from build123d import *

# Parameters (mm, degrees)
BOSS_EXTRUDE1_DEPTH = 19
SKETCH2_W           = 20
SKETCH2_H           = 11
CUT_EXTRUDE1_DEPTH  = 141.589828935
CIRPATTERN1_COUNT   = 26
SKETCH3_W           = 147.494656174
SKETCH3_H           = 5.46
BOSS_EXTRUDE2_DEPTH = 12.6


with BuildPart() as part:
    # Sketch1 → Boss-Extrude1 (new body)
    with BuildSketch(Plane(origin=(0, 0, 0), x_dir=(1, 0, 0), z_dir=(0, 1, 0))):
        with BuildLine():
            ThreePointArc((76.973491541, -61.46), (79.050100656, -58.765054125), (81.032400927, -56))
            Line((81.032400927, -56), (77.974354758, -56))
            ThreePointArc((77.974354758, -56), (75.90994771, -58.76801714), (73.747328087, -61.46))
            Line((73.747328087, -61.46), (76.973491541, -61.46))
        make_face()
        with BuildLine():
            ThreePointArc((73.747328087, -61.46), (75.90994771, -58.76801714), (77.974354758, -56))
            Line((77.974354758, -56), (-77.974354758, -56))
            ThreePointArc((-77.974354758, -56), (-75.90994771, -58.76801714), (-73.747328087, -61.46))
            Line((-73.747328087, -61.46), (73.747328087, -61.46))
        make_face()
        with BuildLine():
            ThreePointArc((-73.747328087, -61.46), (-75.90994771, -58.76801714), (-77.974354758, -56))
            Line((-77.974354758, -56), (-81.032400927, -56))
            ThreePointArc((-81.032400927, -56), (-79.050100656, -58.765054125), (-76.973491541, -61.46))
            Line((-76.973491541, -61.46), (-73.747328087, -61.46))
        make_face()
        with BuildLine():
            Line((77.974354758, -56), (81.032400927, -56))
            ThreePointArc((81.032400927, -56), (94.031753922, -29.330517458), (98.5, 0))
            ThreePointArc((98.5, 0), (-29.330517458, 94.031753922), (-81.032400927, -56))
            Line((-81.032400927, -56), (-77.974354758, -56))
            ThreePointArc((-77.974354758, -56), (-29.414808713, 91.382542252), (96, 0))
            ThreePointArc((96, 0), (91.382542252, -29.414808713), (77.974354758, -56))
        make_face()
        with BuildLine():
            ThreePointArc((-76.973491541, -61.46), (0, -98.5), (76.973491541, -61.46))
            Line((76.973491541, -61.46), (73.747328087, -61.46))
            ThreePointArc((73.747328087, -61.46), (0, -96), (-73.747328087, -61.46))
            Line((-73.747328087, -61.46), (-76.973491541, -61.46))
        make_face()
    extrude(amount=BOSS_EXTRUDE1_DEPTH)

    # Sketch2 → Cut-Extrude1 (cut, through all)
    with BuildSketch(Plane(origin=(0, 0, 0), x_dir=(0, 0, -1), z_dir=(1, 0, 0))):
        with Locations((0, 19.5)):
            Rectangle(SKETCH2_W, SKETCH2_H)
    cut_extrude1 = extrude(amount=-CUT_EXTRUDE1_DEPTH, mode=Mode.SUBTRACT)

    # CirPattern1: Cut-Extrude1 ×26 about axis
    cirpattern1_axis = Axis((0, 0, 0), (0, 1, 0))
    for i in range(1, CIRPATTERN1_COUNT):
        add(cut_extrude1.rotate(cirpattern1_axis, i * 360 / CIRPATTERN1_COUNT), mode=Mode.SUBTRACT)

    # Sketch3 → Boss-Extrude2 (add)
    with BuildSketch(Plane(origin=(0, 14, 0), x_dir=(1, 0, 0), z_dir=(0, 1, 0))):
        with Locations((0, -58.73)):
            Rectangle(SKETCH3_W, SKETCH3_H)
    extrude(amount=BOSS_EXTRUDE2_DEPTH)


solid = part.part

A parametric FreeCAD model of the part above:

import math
import FreeCAD as App
import Part
import Sketcher

V = App.Vector
Q = App.Units.Quantity

doc = App.newDocument("Part")
body = doc.addObject("PartDesign::Body", "Body")

sketch1 = body.newObject("Sketcher::SketchObject", "Sketch")
sketch1.AttachmentSupport = (doc.getObject("XZ_Plane"), [""])
sketch1.MapMode = "FlatFace"
sketch1.addGeometry([
    Part.ArcOfCircle(Part.Circle(V(0, 0, 0), V(0, 0, 1), 98.5), math.radians(34.647637), math.radians(38.60585)),
    Part.ArcOfCircle(Part.Circle(V(0, 0, 0), V(0, 0, 1), 98.5), math.radians(0), math.radians(34.647637)),
    Part.ArcOfCircle(Part.Circle(V(0, 0, 0), V(0, 0, 1), 98.5), math.radians(145.352363), math.radians(360)),
    Part.ArcOfCircle(Part.Circle(V(0, 0, 0), V(0, 0, 1), 98.5), math.radians(141.39415), math.radians(145.352363)),
    Part.ArcOfCircle(Part.Circle(V(0, 0, 0), V(0, 0, 1), 98.5), math.radians(38.60585), math.radians(141.39415)),
    Part.LineSegment(V(-73.747328, 61.46, 0), V(73.747328, 61.46, 0)),
    Part.ArcOfCircle(Part.Circle(V(0, 0, 0), V(0, 0, 1), 96), math.radians(39.807356), math.radians(140.192644)),
    Part.LineSegment(V(77.974355, 56, 0), V(-77.974355, 56, 0)),
    Part.ArcOfCircle(Part.Circle(V(0, 0, 0), V(0, 0, 1), 96), math.radians(144.314665), math.radians(360)),
    Part.ArcOfCircle(Part.Circle(V(0, 0, 0), V(0, 0, 1), 96), math.radians(0), math.radians(35.685335)),
], False)
sketch1.addConstraint([
    Sketcher.Constraint("Tangent", 0, 1, 1, 2),
    Sketcher.Constraint("Tangent", 1, 1, 2, 2),
    Sketcher.Constraint("Tangent", 2, 1, 3, 2),
    Sketcher.Constraint("Tangent", 3, 1, 4, 2),
    Sketcher.Constraint("Tangent", 4, 1, 0, 2),
    Sketcher.Constraint("Coincident", 5, 1, 6, 2),
    Sketcher.Constraint("Coincident", 6, 1, 5, 2),
    Sketcher.Constraint("Coincident", 7, 2, 8, 1),
    Sketcher.Constraint("Tangent", 8, 2, 9, 1),
    Sketcher.Constraint("Coincident", 9, 2, 7, 1),
    Sketcher.Constraint("Horizontal", 5),
    Sketcher.Constraint("Horizontal", 7),
    Sketcher.Constraint("Coincident", 0, 3, -1, 1),
    Sketcher.Constraint("Coincident", 2, 3, -1, 1),
    Sketcher.Constraint("Coincident", 6, 3, -1, 1),
    Sketcher.Constraint("Coincident", 8, 3, -1, 1),
    Sketcher.Constraint("Equal", 6, 8),
    Sketcher.Constraint("Equal", 8, 9),
    Sketcher.Constraint("PointOnObject", 1, 1, -1),
    Sketcher.Constraint("PointOnObject", 8, 2, -1),
    Sketcher.Constraint("Horizontal", 0, 1, 2, 1),
    Sketcher.Constraint("Horizontal", 3, 1, 4, 1),
    Sketcher.Constraint("Horizontal", 4, 1, 5, 1),
    Sketcher.Constraint("Horizontal", 2, 1, 7, 2),
    Sketcher.Constraint("Radius", 6, Q("96 mm")),
    Sketcher.Constraint("Radius", 0, Q("98.5 mm")),
    Sketcher.Constraint("DistanceY", -1, 1, 0, 1, Q("56 mm")),
    Sketcher.Constraint("DistanceY", -1, 1, 3, 1, Q("61.46 mm")),
])
pad1 = body.newObject("PartDesign::Pad", "Pad")
pad1.Profile = sketch1
pad1.Length = 19
pad1.Reversed = True

sketch2 = body.newObject("Sketcher::SketchObject", "Sketch001")
sketch2.AttachmentSupport = (doc.getObject("YZ_Plane"), [""])
sketch2.MapMode = "FlatFace"
sketch2.addGeometry([
    Part.LineSegment(V(25, 10, 0), V(14, 10, 0)),
    Part.LineSegment(V(14, 10, 0), V(14, -10, 0)),
    Part.LineSegment(V(14, -10, 0), V(25, -10, 0)),
    Part.LineSegment(V(25, -10, 0), V(25, 10, 0)),
], False)
sketch2.addConstraint([
    Sketcher.Constraint("Coincident", 0, 2, 1, 1),
    Sketcher.Constraint("Coincident", 1, 2, 2, 1),
    Sketcher.Constraint("Coincident", 2, 2, 3, 1),
    Sketcher.Constraint("Coincident", 3, 2, 0, 1),
    Sketcher.Constraint("Horizontal", 0),
    Sketcher.Constraint("Vertical", 1),
    Sketcher.Constraint("Horizontal", 2),
    Sketcher.Constraint("Vertical", 3),
    Sketcher.Constraint("DistanceX", 0, 2, 0, 1, Q("11 mm")),
    Sketcher.Constraint("DistanceY", 1, 2, 1, 1, Q("20 mm")),
    Sketcher.Constraint("DistanceX", -1, 1, 0, 2, Q("14 mm")),
    Sketcher.Constraint("DistanceY", -1, 1, 0, 2, Q("10 mm")),
])
pocket1 = body.newObject("PartDesign::Pocket", "Pocket")
pocket1.Profile = sketch2
pocket1.Type = "ThroughAll"
doc.recompute()

polarpattern = body.newObject("PartDesign::PolarPattern", "PolarPattern")
polarpattern.Originals = [pocket1]
polarpattern.Axis = (doc.getObject("Y_Axis"), [""])
polarpattern.Angle = 360
polarpattern.Occurrences = 26
body.Tip = polarpattern

sketch3 = body.newObject("Sketcher::SketchObject", "Sketch002")
sketch3.AttachmentSupport = (doc.getObject("XZ_Plane"), [""])
sketch3.MapMode = "FlatFace"
sketch3.AttachmentOffset = App.Placement(V(0, 0, -14), App.Rotation())
sketch3.addGeometry([
    Part.LineSegment(V(-73.747328, 56, 0), V(-73.747328, 61.46, 0)),
    Part.LineSegment(V(-73.747328, 61.46, 0), V(73.747328, 61.46, 0)),
    Part.LineSegment(V(73.747328, 61.46, 0), V(73.747328, 56, 0)),
    Part.LineSegment(V(73.747328, 56, 0), V(-73.747328, 56, 0)),
], False)
sketch3.addConstraint([
    Sketcher.Constraint("Coincident", 0, 2, 1, 1),
    Sketcher.Constraint("Coincident", 1, 2, 2, 1),
    Sketcher.Constraint("Coincident", 2, 2, 3, 1),
    Sketcher.Constraint("Coincident", 3, 2, 0, 1),
    Sketcher.Constraint("Vertical", 0),
    Sketcher.Constraint("Horizontal", 1),
    Sketcher.Constraint("Vertical", 2),
    Sketcher.Constraint("Horizontal", 3),
    Sketcher.Constraint("DistanceY", -1, 1, 2, 2, Q("56 mm")),
    Sketcher.Constraint("DistanceY", 0, 1, 0, 2, Q("5.46 mm")),
    Sketcher.Constraint("DistanceX", 1, 1, 1, 2, Q("147.494656 mm")),
    Sketcher.Constraint("DistanceX", 0, 2, -1, 1, Q("73.747328 mm")),
])
pad2 = body.newObject("PartDesign::Pad", "Pad001")
pad2.Profile = sketch3
pad2.Length = 12.6
pad2.Reversed = True

doc.recompute()
